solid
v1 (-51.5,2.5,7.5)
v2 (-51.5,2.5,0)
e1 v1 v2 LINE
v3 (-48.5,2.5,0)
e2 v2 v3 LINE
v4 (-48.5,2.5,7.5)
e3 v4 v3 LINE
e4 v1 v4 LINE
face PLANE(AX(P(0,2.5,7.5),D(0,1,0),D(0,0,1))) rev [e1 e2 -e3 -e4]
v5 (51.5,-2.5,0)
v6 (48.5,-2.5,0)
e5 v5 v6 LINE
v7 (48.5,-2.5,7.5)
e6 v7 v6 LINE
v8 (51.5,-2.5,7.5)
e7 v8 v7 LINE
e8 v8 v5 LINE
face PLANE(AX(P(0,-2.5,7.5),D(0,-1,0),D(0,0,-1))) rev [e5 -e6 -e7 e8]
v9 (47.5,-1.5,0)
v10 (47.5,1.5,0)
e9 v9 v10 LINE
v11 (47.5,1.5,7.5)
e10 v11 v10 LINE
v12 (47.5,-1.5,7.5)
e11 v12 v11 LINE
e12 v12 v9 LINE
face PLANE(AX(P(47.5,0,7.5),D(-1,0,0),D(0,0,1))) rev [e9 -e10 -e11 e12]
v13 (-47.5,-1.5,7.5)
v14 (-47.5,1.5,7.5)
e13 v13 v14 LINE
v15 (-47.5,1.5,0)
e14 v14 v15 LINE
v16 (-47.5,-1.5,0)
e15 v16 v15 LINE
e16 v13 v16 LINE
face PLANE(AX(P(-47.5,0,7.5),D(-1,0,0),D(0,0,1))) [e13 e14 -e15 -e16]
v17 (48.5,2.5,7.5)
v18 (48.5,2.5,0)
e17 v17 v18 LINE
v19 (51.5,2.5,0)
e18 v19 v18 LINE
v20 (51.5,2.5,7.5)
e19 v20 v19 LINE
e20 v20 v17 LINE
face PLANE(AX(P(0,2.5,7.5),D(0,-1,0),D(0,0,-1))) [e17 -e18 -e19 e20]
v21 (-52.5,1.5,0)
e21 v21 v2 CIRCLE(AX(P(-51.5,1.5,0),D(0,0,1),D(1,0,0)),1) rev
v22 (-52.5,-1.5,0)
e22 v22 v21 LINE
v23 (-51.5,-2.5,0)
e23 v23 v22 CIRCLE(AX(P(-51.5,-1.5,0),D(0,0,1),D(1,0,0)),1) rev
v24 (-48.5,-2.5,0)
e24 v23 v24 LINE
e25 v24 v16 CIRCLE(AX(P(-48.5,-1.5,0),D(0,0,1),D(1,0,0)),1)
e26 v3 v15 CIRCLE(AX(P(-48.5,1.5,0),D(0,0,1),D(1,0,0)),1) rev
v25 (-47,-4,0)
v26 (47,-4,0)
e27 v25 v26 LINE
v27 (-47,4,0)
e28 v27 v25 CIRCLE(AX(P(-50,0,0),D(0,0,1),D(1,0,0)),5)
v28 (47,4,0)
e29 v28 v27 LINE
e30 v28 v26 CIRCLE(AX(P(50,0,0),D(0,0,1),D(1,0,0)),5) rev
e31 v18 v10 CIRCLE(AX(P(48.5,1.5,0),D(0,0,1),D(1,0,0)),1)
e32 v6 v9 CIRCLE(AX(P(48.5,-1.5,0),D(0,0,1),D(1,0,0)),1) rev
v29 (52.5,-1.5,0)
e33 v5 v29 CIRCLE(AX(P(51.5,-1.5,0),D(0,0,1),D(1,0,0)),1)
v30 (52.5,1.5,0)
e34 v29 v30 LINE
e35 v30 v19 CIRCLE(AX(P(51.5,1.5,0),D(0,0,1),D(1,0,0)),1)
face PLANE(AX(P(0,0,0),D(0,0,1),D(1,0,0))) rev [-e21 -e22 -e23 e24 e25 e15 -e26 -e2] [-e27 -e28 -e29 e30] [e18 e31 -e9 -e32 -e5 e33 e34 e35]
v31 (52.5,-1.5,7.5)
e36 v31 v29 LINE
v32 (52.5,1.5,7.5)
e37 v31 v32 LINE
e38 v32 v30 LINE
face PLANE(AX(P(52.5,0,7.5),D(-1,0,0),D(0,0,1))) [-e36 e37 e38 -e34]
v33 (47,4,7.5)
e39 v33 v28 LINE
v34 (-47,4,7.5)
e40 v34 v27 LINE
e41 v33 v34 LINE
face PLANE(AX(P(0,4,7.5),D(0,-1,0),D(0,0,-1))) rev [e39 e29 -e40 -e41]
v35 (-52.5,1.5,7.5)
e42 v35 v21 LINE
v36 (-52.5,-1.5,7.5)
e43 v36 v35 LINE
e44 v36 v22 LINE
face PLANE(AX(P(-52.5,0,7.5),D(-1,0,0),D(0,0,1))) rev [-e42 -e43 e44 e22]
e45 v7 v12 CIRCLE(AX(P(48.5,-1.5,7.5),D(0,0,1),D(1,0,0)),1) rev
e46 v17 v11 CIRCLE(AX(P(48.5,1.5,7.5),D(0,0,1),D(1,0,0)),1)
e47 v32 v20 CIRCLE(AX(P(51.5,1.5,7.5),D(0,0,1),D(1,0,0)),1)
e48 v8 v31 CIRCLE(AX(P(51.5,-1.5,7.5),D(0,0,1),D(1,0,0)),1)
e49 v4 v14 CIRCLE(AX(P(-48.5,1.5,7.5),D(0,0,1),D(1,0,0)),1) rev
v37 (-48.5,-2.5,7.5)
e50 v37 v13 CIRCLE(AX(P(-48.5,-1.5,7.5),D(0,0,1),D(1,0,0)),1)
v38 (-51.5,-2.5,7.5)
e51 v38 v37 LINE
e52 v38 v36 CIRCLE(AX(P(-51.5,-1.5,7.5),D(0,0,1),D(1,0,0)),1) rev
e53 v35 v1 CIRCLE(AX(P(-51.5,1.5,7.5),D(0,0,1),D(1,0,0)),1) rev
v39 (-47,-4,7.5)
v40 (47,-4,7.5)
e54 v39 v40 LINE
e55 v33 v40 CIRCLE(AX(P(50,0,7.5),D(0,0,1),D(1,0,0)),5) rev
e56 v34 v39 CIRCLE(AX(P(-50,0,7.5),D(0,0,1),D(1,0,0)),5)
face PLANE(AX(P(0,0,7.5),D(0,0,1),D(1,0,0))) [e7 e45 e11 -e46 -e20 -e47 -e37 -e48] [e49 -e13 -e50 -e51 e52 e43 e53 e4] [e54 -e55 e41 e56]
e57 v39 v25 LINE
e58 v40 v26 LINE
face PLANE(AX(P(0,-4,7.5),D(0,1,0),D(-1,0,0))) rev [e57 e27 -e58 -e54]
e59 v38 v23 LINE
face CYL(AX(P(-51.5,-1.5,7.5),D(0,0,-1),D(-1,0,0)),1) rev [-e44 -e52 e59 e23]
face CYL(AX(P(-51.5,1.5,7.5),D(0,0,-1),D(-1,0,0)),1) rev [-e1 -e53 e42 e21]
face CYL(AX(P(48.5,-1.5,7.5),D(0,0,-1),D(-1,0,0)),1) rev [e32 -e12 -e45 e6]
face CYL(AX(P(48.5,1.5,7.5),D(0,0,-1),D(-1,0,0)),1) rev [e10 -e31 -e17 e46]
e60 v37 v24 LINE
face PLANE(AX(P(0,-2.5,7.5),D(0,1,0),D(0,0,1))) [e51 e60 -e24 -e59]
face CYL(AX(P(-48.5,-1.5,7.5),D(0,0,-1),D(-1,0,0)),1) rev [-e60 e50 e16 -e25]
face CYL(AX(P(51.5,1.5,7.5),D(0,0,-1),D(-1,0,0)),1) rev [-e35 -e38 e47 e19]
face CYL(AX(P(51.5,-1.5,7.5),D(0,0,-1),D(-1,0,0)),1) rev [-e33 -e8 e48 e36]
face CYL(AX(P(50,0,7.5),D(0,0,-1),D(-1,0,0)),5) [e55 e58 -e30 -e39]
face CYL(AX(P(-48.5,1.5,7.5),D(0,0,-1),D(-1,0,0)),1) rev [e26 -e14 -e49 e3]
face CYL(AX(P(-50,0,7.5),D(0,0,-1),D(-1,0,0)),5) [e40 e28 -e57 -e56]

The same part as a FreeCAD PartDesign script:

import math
import FreeCAD as App
import Part
import Sketcher

doc = App.newDocument("Part")
body = doc.addObject("PartDesign::Body", "Body")

sketch1 = body.newObject("Sketcher::SketchObject", "Sketch")
sketch1.AttachmentSupport = (doc.getObject("XY_Plane"), [""])
sketch1.MapMode = "FlatFace"
sketch1.addGeometry([
    Part.ArcOfCircle(Part.Circle(App.Vector(50, 0, 0), App.Vector(0, 0, 1), 5), math.radians(-127), math.radians(127)),
    Part.LineSegment(App.Vector(47, 4, 0), App.Vector(-47, 4, 0)),
    Part.ArcOfCircle(Part.Circle(App.Vector(-50, 0, 0), App.Vector(0, 0, 1), 5), math.radians(53), math.radians(307)),
    Part.LineSegment(App.Vector(-47, -4, 0), App.Vector(47, -4, 0)),
    Part.LineSegment(App.Vector(52.5, 1.5, 0), App.Vector(52.5, -1.5, 0)),
    Part.ArcOfCircle(Part.Circle(App.Vector(51.5, -1.5, 0), App.Vector(0, 0, 1), 1), math.radians(-90), math.radians(0)),
    Part.LineSegment(App.Vector(51.5, -2.5, 0), App.Vector(48.5, -2.5, 0)),
    Part.ArcOfCircle(Part.Circle(App.Vector(48.5, -1.5, 0), App.Vector(0, 0, 1), 1), math.radians(-180), math.radians(-90)),
    Part.LineSegment(App.Vector(47.5, -1.5, 0), App.Vector(47.5, 1.5, 0)),
    Part.ArcOfCircle(Part.Circle(App.Vector(48.5, 1.5, 0), App.Vector(0, 0, 1), 1), math.radians(90), math.radians(180)),
    Part.LineSegment(App.Vector(48.5, 2.5, 0), App.Vector(51.5, 2.5, 0)),
    Part.ArcOfCircle(Part.Circle(App.Vector(51.5, 1.5, 0), App.Vector(0, 0, 1), 1), math.radians(0), math.radians(90)),
    Part.LineSegment(App.Vector(-52.5, -1.5, 0), App.Vector(-52.5, 1.5, 0)),
    Part.ArcOfCircle(Part.Circle(App.Vector(-51.5, 1.5, 0), App.Vector(0, 0, 1), 1), math.radians(90), math.radians(180)),
    Part.LineSegment(App.Vector(-51.5, 2.5, 0), App.Vector(-48.5, 2.5, 0)),
    Part.ArcOfCircle(Part.Circle(App.Vector(-48.5, 1.5, 0), App.Vector(0, 0, 1), 1), math.radians(0), math.radians(90)),
    Part.LineSegment(App.Vector(-47.5, 1.5, 0), App.Vector(-47.5, -1.5, 0)),
    Part.ArcOfCircle(Part.Circle(App.Vector(-48.5, -1.5, 0), App.Vector(0, 0, 1), 1), math.radians(-90), math.radians(0)),
    Part.LineSegment(App.Vector(-48.5, -2.5, 0), App.Vector(-51.5, -2.5, 0)),
    Part.ArcOfCircle(Part.Circle(App.Vector(-51.5, -1.5, 0), App.Vector(0, 0, 1), 1), math.radians(-180), math.radians(-90)),
], False)
sketch1.addConstraint([
    Sketcher.Constraint("Coincident", 0, 2, 1, 1),
    Sketcher.Constraint("Coincident", 1, 2, 2, 1),
    Sketcher.Constraint("Coincident", 2, 2, 3, 1),
    Sketcher.Constraint("Coincident", 3, 2, 0, 1),
    Sketcher.Constraint("Tangent", 4, 2, 5, 2),
    Sketcher.Constraint("Tangent", 5, 1, 6, 1),
    Sketcher.Constraint("Tangent", 6, 2, 7, 2),
    Sketcher.Constraint("Tangent", 7, 1, 8, 1),
    Sketcher.Constraint("Tangent", 8, 2, 9, 2),
    Sketcher.Constraint("Tangent", 9, 1, 10, 1),
    Sketcher.Constraint("Tangent", 10, 2, 11, 2),
    Sketcher.Constraint("Tangent", 11, 1, 4, 1),
    Sketcher.Constraint("Tangent", 12, 2, 13, 2),
    Sketcher.Constraint("Tangent", 13, 1, 14, 1),
    Sketcher.Constraint("Tangent", 14, 2, 15, 2),
    Sketcher.Constraint("Tangent", 15, 1, 16, 1),
    Sketcher.Constraint("Tangent", 16, 2, 17, 2),
    Sketcher.Constraint("Tangent", 17, 1, 18, 1),
    Sketcher.Constraint("Tangent", 18, 2, 19, 2),
    Sketcher.Constraint("Tangent", 19, 1, 12, 1),
    Sketcher.Constraint("Horizontal", 1),
    Sketcher.Constraint("Horizontal", 3),
    Sketcher.Constraint("Vertical", 4),
    Sketcher.Constraint("Horizontal", 6),
    Sketcher.Constraint("Vertical", 8),
    Sketcher.Constraint("Horizontal", 10),
    Sketcher.Constraint("Vertical", 12),
    Sketcher.Constraint("Horizontal", 14),
    Sketcher.Constraint("Vertical", 16),
    Sketcher.Constraint("Horizontal", 18),
    Sketcher.Constraint("Equal", 0, 2),
    Sketcher.Constraint("Equal", 5, 7),
    Sketcher.Constraint("Equal", 7, 9),
    Sketcher.Constraint("Equal", 9, 11),
    Sketcher.Constraint("Equal", 11, 13),
    Sketcher.Constraint("Equal", 13, 15),
    Sketcher.Constraint("Equal", 15, 17),
    Sketcher.Constraint("Equal", 17, 19),
    Sketcher.Constraint("Symmetric", 0, 3, 2, 3, -1, 1),
    Sketcher.Constraint("Symmetric", 5, 3, 13, 3, -1, 1),
    Sketcher.Constraint("Symmetric", 9, 3, 17, 3, -1, 1),
    Sketcher.Constraint("Symmetric", 1, 2, 2, 2, -1),
    Sketcher.Constraint("Horizontal", 11, 3, 13, 3),
    Sketcher.Constraint("Equal", 18, 4),
    Sketcher.Constraint("Radius", 0, 5.0),
    Sketcher.Constraint("Radius", 5, 1.0),
    Sketcher.Constraint("DistanceX", 1, 2, 1, 1, 94.0),
    Sketcher.Constraint("DistanceX", 6, 2, 6, 1, 3.0),
    Sketcher.Constraint("DistanceX", -1, 1, 0, 3, 50.0),
    Sketcher.Constraint("DistanceX", 13, 3, 9, 3, 100.0),
])
pad1 = body.newObject("PartDesign::Pad", "Pad")
pad1.Profile = sketch1
pad1.Length = 7.5

doc.recompute()
